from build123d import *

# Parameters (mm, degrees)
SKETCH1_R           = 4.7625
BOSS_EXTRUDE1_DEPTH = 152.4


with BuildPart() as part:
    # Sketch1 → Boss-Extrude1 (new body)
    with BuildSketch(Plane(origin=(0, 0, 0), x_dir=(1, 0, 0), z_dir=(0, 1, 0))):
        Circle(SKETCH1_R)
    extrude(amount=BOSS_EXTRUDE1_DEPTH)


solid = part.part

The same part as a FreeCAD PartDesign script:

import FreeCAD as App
import Part
import Sketcher
Q = App.Units.Quantity

doc = App.newDocument("Part")
body = doc.addObject("PartDesign::Body", "Body")

sketch1 = body.newObject("Sketcher::SketchObject", "Sketch")
sketch1.AttachmentSupport = (doc.getObject("XZ_Plane"), [""])
sketch1.MapMode = "FlatFace"
sketch1.addGeometry(Part.Circle(App.Vector(0, 0, 0), App.Vector(0, 0, 1), 4.8), False)
sketch1.addConstraint(Sketcher.Constraint("Coincident", 0, 3, -1, 1))
sketch1.addConstraint(Sketcher.Constraint("Diameter", 0, Q("0.375 in")))
pad1 = body.newObject("PartDesign::Pad", "Pad")
pad1.Profile = sketch1
pad1.Length = Q("6 in")
pad1.Reversed = True

doc.recompute()
